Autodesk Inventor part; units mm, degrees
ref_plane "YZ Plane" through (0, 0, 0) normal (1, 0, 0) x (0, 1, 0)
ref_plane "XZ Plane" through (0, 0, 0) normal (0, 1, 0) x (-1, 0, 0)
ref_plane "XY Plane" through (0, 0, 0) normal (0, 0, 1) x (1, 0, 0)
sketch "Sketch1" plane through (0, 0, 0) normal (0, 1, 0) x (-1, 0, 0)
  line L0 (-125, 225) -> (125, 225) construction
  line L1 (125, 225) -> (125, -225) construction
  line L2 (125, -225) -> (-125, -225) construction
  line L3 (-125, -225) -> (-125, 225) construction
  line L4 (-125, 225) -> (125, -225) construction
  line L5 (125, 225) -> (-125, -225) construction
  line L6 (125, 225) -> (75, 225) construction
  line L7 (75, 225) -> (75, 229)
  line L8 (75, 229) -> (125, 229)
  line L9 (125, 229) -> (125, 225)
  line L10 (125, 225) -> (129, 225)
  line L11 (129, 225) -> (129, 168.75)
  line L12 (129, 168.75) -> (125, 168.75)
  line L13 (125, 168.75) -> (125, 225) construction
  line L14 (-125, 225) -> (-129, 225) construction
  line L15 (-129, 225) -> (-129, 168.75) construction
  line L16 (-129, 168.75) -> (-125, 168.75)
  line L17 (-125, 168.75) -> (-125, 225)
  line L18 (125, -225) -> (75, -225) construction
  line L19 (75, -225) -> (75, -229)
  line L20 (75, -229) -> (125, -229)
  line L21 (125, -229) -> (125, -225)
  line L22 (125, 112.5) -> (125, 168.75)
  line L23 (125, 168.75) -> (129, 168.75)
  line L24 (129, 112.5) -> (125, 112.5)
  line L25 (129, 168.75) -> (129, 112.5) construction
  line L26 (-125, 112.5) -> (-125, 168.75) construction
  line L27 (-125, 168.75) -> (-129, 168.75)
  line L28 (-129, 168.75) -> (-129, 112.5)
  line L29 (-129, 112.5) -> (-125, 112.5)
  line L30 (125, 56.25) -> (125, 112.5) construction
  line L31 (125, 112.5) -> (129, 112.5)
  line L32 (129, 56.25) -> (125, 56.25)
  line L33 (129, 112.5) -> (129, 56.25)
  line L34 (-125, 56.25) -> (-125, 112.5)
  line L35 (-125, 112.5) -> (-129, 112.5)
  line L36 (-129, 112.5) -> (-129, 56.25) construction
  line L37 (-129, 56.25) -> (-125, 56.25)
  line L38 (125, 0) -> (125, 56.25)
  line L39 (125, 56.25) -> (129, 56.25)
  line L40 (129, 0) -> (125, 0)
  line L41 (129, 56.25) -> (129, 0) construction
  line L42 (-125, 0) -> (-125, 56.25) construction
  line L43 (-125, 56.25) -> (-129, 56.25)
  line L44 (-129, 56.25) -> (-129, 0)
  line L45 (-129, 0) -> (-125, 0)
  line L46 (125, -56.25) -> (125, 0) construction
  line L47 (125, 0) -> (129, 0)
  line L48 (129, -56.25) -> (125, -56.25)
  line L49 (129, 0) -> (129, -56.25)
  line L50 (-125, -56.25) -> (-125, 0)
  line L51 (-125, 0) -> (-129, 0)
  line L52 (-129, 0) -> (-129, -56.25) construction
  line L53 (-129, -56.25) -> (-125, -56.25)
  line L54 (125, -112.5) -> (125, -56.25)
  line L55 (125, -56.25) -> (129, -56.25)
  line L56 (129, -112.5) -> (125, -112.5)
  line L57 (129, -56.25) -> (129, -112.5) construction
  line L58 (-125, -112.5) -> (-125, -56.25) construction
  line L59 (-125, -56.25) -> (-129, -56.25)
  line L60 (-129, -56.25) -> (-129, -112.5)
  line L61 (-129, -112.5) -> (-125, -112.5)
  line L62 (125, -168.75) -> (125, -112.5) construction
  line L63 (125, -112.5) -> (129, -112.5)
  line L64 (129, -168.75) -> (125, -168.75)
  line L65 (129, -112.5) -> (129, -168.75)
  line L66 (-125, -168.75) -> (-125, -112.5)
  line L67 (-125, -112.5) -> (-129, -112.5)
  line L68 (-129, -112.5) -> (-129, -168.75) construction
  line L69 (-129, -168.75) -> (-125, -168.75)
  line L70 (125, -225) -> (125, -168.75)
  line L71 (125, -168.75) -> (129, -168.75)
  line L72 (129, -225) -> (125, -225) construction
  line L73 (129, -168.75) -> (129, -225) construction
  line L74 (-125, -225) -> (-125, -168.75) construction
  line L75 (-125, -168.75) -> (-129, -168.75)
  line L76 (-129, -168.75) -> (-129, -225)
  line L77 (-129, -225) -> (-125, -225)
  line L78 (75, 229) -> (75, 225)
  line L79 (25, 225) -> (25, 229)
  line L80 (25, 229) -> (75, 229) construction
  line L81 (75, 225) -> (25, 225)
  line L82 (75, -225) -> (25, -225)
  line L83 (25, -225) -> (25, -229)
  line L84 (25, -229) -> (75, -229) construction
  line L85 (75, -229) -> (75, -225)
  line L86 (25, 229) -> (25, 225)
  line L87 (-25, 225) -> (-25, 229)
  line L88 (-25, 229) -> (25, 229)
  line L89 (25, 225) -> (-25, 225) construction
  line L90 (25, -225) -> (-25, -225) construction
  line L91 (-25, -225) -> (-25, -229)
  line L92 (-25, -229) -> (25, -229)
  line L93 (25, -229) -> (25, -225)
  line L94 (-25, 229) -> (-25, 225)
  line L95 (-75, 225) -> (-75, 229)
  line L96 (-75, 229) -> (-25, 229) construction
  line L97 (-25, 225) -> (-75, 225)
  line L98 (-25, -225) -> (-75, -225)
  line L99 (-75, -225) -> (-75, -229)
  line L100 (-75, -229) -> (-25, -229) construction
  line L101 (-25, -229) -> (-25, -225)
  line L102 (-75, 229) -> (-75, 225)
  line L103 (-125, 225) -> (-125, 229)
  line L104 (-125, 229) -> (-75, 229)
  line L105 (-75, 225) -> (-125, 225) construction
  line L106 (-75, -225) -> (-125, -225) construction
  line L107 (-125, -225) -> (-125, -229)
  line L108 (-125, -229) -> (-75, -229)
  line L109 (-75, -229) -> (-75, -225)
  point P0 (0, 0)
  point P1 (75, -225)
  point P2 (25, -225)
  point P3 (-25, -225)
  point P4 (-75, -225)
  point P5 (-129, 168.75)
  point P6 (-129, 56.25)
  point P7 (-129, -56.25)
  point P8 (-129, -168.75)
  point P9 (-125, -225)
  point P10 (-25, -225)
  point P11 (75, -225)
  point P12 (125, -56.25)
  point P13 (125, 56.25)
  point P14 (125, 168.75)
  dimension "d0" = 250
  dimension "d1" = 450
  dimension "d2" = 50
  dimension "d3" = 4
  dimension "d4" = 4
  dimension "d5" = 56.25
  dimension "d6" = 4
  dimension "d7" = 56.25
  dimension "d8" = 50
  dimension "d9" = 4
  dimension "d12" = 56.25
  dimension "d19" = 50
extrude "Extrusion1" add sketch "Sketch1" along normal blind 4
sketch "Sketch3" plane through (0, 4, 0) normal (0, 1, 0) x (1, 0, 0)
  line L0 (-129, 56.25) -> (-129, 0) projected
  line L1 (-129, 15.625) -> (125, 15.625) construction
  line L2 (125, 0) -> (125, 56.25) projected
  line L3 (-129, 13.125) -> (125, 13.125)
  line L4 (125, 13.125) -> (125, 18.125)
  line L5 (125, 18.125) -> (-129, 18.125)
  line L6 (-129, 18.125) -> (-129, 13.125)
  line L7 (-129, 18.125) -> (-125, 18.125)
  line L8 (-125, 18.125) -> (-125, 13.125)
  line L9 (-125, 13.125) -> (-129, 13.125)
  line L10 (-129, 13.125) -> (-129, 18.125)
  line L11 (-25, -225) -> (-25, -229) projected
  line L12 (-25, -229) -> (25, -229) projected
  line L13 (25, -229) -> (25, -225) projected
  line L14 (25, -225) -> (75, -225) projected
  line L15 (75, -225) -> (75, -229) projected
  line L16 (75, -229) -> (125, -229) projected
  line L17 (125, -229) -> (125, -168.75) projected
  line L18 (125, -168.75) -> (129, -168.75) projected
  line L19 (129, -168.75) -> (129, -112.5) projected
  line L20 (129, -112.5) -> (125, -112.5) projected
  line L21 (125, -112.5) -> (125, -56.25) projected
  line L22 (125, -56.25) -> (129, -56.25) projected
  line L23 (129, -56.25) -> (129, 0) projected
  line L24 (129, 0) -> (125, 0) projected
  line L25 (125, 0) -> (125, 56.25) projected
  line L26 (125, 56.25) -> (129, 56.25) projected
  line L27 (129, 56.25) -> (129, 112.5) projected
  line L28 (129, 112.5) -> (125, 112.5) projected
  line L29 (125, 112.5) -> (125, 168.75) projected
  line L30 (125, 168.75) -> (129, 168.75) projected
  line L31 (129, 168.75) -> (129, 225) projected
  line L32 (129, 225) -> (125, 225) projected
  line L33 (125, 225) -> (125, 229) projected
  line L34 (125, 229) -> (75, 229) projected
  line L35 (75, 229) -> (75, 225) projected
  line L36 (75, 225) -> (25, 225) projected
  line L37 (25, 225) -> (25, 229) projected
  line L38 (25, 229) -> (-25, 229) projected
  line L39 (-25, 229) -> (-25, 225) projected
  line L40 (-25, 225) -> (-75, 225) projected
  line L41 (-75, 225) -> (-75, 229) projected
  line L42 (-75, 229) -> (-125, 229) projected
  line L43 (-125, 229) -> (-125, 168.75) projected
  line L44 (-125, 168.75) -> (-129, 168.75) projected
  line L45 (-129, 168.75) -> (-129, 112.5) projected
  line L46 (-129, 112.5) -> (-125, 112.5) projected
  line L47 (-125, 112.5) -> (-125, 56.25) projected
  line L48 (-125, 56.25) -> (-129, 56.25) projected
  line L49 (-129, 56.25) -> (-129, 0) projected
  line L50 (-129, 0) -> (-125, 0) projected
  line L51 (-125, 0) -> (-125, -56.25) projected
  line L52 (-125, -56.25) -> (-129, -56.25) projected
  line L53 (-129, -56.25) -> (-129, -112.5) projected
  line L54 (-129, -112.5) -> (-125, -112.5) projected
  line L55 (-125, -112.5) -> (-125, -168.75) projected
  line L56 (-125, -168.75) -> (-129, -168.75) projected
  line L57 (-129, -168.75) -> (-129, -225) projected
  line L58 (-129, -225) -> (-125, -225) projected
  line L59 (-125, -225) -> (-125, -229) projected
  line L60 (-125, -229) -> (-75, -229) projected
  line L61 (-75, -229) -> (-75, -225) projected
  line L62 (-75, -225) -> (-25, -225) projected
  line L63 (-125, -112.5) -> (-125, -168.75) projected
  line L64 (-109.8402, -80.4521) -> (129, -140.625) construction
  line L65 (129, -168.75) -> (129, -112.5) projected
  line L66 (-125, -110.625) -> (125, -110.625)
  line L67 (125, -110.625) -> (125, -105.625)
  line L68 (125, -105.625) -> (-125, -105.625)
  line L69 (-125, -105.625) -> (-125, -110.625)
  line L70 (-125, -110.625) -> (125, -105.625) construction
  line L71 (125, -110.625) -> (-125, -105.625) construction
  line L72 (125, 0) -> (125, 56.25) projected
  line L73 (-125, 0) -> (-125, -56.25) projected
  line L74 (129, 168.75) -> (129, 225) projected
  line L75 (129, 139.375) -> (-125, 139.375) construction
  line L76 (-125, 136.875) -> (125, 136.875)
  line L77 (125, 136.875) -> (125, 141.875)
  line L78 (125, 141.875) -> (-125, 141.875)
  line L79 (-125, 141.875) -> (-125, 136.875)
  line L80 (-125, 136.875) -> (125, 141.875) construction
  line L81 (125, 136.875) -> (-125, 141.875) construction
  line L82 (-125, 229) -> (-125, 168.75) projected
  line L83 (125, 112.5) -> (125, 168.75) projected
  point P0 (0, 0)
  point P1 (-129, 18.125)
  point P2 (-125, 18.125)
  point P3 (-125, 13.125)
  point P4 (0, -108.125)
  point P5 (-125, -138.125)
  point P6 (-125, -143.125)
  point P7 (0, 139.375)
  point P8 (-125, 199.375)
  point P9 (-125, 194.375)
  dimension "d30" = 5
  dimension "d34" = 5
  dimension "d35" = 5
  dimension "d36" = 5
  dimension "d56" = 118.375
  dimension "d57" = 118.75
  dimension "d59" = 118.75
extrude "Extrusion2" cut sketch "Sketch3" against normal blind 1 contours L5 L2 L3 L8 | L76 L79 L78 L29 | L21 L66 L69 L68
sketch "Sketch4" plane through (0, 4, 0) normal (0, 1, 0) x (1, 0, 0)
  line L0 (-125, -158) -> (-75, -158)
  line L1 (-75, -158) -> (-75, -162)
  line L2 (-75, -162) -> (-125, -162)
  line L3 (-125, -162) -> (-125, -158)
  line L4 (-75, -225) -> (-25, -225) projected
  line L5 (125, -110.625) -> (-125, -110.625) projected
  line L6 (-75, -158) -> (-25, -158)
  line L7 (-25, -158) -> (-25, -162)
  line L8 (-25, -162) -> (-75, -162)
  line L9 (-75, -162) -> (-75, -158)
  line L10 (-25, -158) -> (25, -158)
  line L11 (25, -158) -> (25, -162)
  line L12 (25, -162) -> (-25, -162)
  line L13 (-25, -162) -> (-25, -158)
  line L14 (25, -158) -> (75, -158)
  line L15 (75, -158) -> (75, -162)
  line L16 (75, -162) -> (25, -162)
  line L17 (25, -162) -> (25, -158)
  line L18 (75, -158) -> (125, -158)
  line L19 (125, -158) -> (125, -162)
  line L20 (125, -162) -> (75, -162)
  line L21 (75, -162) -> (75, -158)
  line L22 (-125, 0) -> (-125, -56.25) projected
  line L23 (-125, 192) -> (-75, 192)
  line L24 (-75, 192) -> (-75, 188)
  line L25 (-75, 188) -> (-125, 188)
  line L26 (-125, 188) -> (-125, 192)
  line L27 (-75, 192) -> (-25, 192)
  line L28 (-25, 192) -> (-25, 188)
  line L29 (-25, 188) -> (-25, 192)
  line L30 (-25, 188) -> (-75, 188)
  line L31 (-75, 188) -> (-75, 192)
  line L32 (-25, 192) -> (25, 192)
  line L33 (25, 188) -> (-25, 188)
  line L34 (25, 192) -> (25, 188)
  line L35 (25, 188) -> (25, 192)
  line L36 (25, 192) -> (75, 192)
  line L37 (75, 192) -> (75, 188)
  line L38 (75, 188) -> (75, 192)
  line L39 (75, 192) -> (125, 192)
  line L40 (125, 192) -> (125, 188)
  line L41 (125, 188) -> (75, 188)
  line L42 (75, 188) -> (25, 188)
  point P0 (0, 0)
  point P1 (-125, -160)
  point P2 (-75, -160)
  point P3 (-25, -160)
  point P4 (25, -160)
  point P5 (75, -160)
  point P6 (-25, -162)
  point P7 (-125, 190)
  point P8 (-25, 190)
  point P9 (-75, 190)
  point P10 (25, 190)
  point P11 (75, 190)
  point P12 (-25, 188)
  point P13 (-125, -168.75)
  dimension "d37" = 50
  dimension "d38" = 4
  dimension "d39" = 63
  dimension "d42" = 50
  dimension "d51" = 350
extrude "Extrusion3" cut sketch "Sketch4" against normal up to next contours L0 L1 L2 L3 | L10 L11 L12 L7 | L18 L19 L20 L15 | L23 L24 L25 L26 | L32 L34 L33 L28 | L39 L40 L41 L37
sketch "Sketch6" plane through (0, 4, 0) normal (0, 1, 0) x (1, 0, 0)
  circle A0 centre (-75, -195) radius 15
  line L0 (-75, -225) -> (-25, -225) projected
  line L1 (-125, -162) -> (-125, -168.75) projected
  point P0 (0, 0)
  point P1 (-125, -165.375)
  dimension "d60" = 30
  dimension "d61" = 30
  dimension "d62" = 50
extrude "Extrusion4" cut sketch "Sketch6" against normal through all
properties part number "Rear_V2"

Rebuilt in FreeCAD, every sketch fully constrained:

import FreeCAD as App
import Part
import Sketcher

V = App.Vector


def add_polygon(sketch, points):
    """Adds a closed chain of lines whose ends are joined by coincident constraints."""
    first, n = sketch.GeometryCount, len(points)
    for a, b in zip(points, points[1:] + points[:1]):
        sketch.addGeometry(Part.LineSegment(App.Vector(*a, 0), App.Vector(*b, 0)), False)
    for i in range(n):
        sketch.addConstraint(Sketcher.Constraint("Coincident", first + i, 2, first + (i + 1) % n, 1))

doc = App.newDocument("Part")
params = doc.addObject("Spreadsheet::Sheet", "Params")
for row, (alias, value) in enumerate([
    ("sketch1_width", "50 mm"),
    ("sketch1_width2", "4 mm"),
    ("sketch1_height", "56.25 mm"),
    ("pad1_length", "4 mm"),
    ("sketch2_height", "5 mm"),
    ("sketch2_width", "250 mm"),
    ("pocket1_length", "1 mm"),
    ("sketch3_width", "50 mm"),
    ("sketch3_height", "4 mm"),
    ("pocket2_length", "4 mm"),
    ("sketch4_diameter", "30 mm"),
], start=1):
    params.set(f"A{row}", alias)
    params.set(f"B{row}", "=" + value)
    params.setAlias(f"B{row}", alias)

body = doc.addObject("PartDesign::Body", "Body")

sketch1 = body.newObject("Sketcher::SketchObject", "Sketch")
sketch1.AttachmentSupport = (doc.getObject("XZ_Plane"), [""])
sketch1.MapMode = "FlatFace"
add_polygon(sketch1, [(-75, 229), (-75, 225), (-25, 225), (-25, 229), (25, 229), (25, 225), (75, 225), (75, 229), (125, 229), (125, 168.75), (129, 168.75), (129, 112.5), (125, 112.5), (125, 56.25), (129, 56.25), (129, 0), (125, 0), (125, -56.25), (129, -56.25), (129, -112.5), (125, -112.5), (125, -168.75), (129, -168.75), (129, -225), (125, -225), (125, -229), (75, -229), (75, -225), (25, -225), (25, -229), (-25, -229), (-25, -225), (-75, -225), (-75, -229), (-125, -229), (-125, -168.75), (-129, -168.75), (-129, -112.5), (-125, -112.5), (-125, -56.25), (-129, -56.25), (-129, 0), (-125, 0), (-125, 56.25), (-129, 56.25), (-129, 112.5), (-125, 112.5), (-125, 168.75), (-129, 168.75), (-129, 225), (-125, 225), (-125, 229)])
sketch1.addConstraint(Sketcher.Constraint("Vertical", 0))
sketch1.addConstraint(Sketcher.Constraint("Horizontal", 1))
sketch1.addConstraint(Sketcher.Constraint("Vertical", 2))
sketch1.addConstraint(Sketcher.Constraint("Horizontal", 3))
sketch1.addConstraint(Sketcher.Constraint("Vertical", 4))
sketch1.addConstraint(Sketcher.Constraint("Horizontal", 5))
sketch1.addConstraint(Sketcher.Constraint("Vertical", 6))
sketch1.addConstraint(Sketcher.Constraint("Horizontal", 7))
sketch1.addConstraint(Sketcher.Constraint("Vertical", 8))
sketch1.addConstraint(Sketcher.Constraint("Horizontal", 9))
sketch1.addConstraint(Sketcher.Constraint("Vertical", 10))
sketch1.addConstraint(Sketcher.Constraint("Horizontal", 11))
sketch1.addConstraint(Sketcher.Constraint("Vertical", 12))
sketch1.addConstraint(Sketcher.Constraint("Horizontal", 13))
sketch1.addConstraint(Sketcher.Constraint("Vertical", 14))
sketch1.addConstraint(Sketcher.Constraint("Horizontal", 15))
sketch1.addConstraint(Sketcher.Constraint("Vertical", 16))
sketch1.addConstraint(Sketcher.Constraint("Horizontal", 17))
sketch1.addConstraint(Sketcher.Constraint("Vertical", 18))
sketch1.addConstraint(Sketcher.Constraint("Horizontal", 19))
sketch1.addConstraint(Sketcher.Constraint("Vertical", 20))
sketch1.addConstraint(Sketcher.Constraint("Horizontal", 21))
sketch1.addConstraint(Sketcher.Constraint("Vertical", 22))
sketch1.addConstraint(Sketcher.Constraint("Horizontal", 23))
sketch1.addConstraint(Sketcher.Constraint("Vertical", 24))
sketch1.addConstraint(Sketcher.Constraint("Horizontal", 25))
sketch1.addConstraint(Sketcher.Constraint("Vertical", 26))
sketch1.addConstraint(Sketcher.Constraint("Horizontal", 27))
sketch1.addConstraint(Sketcher.Constraint("Vertical", 28))
sketch1.addConstraint(Sketcher.Constraint("Horizontal", 29))
sketch1.addConstraint(Sketcher.Constraint("Vertical", 30))
sketch1.addConstraint(Sketcher.Constraint("Horizontal", 31))
sketch1.addConstraint(Sketcher.Constraint("Vertical", 32))
sketch1.addConstraint(Sketcher.Constraint("Horizontal", 33))
sketch1.addConstraint(Sketcher.Constraint("Vertical", 34))
sketch1.addConstraint(Sketcher.Constraint("Horizontal", 35))
sketch1.addConstraint(Sketcher.Constraint("Vertical", 36))
sketch1.addConstraint(Sketcher.Constraint("Horizontal", 37))
sketch1.addConstraint(Sketcher.Constraint("Vertical", 38))
sketch1.addConstraint(Sketcher.Constraint("Horizontal", 39))
sketch1.addConstraint(Sketcher.Constraint("Vertical", 40))
sketch1.addConstraint(Sketcher.Constraint("Horizontal", 41))
sketch1.addConstraint(Sketcher.Constraint("Vertical", 42))
sketch1.addConstraint(Sketcher.Constraint("Horizontal", 43))
sketch1.addConstraint(Sketcher.Constraint("Vertical", 44))
sketch1.addConstraint(Sketcher.Constraint("Horizontal", 45))
sketch1.addConstraint(Sketcher.Constraint("Vertical", 46))
sketch1.addConstraint(Sketcher.Constraint("Horizontal", 47))
sketch1.addConstraint(Sketcher.Constraint("Vertical", 48))
sketch1.addConstraint(Sketcher.Constraint("Horizontal", 49))
sketch1.addConstraint(Sketcher.Constraint("Vertical", 50))
sketch1.addConstraint(Sketcher.Constraint("Horizontal", 51))
sketch1.addConstraint(Sketcher.Constraint("Symmetric", 0, 2, 26, 2, -1, 1))
sketch1.addConstraint(Sketcher.Constraint("Symmetric", 2, 2, 28, 2, -1, 1))
sketch1.addConstraint(Sketcher.Constraint("Symmetric", 4, 2, 30, 2, -1, 1))
sketch1.addConstraint(Sketcher.Constraint("Symmetric", 6, 2, 32, 2, -1, 1))
sketch1.addConstraint(Sketcher.Constraint("Symmetric", 8, 2, 34, 2, -1, 1))
sketch1.addConstraint(Sketcher.Constraint("Symmetric", 10, 2, 36, 2, -1, 1))
sketch1.addConstraint(Sketcher.Constraint("Symmetric", 12, 2, 38, 2, -1, 1))
sketch1.addConstraint(Sketcher.Constraint("Symmetric", 14, 2, 40, 2, -1, 1))
sketch1.addConstraint(Sketcher.Constraint("Symmetric", 16, 2, 42, 2, -1, 1))
sketch1.addConstraint(Sketcher.Constraint("Symmetric", 18, 2, 44, 2, -1, 1))
sketch1.addConstraint(Sketcher.Constraint("Symmetric", 20, 2, 46, 2, -1, 1))
sketch1.addConstraint(Sketcher.Constraint("Symmetric", 22, 2, 48, 2, -1, 1))
sketch1.addConstraint(Sketcher.Constraint("Symmetric", 24, 2, 50, 2, -1, 1))
sketch1.addConstraint(Sketcher.Constraint("Symmetric", 1, 2, 4, 2, -2))
sketch1.addConstraint(Sketcher.Constraint("Symmetric", 25, 2, 32, 2, -2))
sketch1.addConstraint(Sketcher.Constraint("Symmetric", 20, 2, 34, 2, -2))
sketch1.addConstraint(Sketcher.Constraint("Symmetric", 18, 2, 36, 2, -2))
sketch1.addConstraint(Sketcher.Constraint("Symmetric", 16, 2, 38, 2, -2))
sketch1.addConstraint(Sketcher.Constraint("PointOnObject", 14, 2, -1))
sketch1.addConstraint(Sketcher.Constraint("Horizontal", 3, 2, 6, 2))
sketch1.addConstraint(Sketcher.Constraint("Horizontal", 23, 2, 26, 2))
sketch1.addConstraint(Sketcher.Constraint("Vertical", 8, 2, 11, 2))
sketch1.addConstraint(Sketcher.Constraint("Vertical", 10, 2, 13, 2))
sketch1.addConstraint(Sketcher.Constraint("Vertical", 18, 2, 21, 2))
sketch1.addConstraint(Sketcher.Constraint("Vertical", 20, 2, 23, 2))
sketch1.addConstraint(Sketcher.Constraint("Equal", 1, 3))
sketch1.addConstraint(Sketcher.Constraint("Equal", 5, 7))
sketch1.addConstraint(Sketcher.Constraint("Equal", 49, 0))
sketch1.addConstraint(Sketcher.Constraint("Equal", 10, 12))
sketch1.addConstraint(Sketcher.Constraint("Equal", 12, 14))
sketch1.addConstraint(Sketcher.Constraint("Equal", 20, 22))
sketch1.addConstraint(Sketcher.Constraint("DistanceX", 1, 1, 1, 2, 50.0))
sketch1.addConstraint(Sketcher.Constraint("DistanceX", 9, 1, 9, 2, 4.0))
sketch1.addConstraint(Sketcher.Constraint("DistanceY", 10, 2, 10, 1, 56.25))
sketch1.setExpression("Constraints[135]", "Params.sketch1_width")
sketch1.setExpression("Constraints[136]", "Params.sketch1_width2")
sketch1.setExpression("Constraints[137]", "Params.sketch1_height")
pad1 = body.newObject("PartDesign::Pad", "Pad")
pad1.Profile = sketch1
pad1.setExpression("Length", "Params.pad1_length")
pad1.Reversed = True

sketch2 = body.newObject("Sketcher::SketchObject", "Sketch001")
sketch2.AttachmentSupport = (doc.getObject("XZ_Plane"), [""])
sketch2.MapMode = "FlatFace"
sketch2.AttachmentOffset = App.Placement(V(0, 0, -4), App.Rotation())
add_polygon(sketch2, [(125, -18.125), (-125, -18.125), (-125, -13.125), (125, -13.125)])
add_polygon(sketch2, [(-125, -136.875), (125, -136.875), (125, -141.875), (-125, -141.875)])
add_polygon(sketch2, [(125, 110.625), (125, 105.625), (-125, 105.625), (-125, 110.625)])
sketch2.addConstraint(Sketcher.Constraint("Horizontal", 0))
sketch2.addConstraint(Sketcher.Constraint("Vertical", 1))
sketch2.addConstraint(Sketcher.Constraint("Horizontal", 2))
sketch2.addConstraint(Sketcher.Constraint("Vertical", 3))
sketch2.addConstraint(Sketcher.Constraint("Horizontal", 4))
sketch2.addConstraint(Sketcher.Constraint("Vertical", 5))
sketch2.addConstraint(Sketcher.Constraint("Horizontal", 6))
sketch2.addConstraint(Sketcher.Constraint("Vertical", 7))
sketch2.addConstraint(Sketcher.Constraint("Vertical", 8))
sketch2.addConstraint(Sketcher.Constraint("Horizontal", 9))
sketch2.addConstraint(Sketcher.Constraint("Vertical", 10))
sketch2.addConstraint(Sketcher.Constraint("Horizontal", 11))
sketch2.addConstraint(Sketcher.Constraint("Vertical", 3, 2, 4, 2))
sketch2.addConstraint(Sketcher.Constraint("Vertical", 1, 2, 6, 2))
sketch2.addConstraint(Sketcher.Constraint("Vertical", 5, 2, 8, 2))
sketch2.addConstraint(Sketcher.Constraint("Vertical", 7, 2, 9, 2))
sketch2.addConstraint(Sketcher.Constraint("Equal", 3, 5))
sketch2.addConstraint(Sketcher.Constraint("Equal", 7, 8))
sketch2.addConstraint(Sketcher.Constraint("DistanceY", 1, 1, 1, 2, 5.0))
sketch2.addConstraint(Sketcher.Constraint("DistanceX", 0, 2, 0, 1, 250.0))
sketch2.addConstraint(Sketcher.Constraint("DistanceY", 4, 2, 3, 2, 118.75))
sketch2.addConstraint(Sketcher.Constraint("DistanceY", 2, 2, 8, 2, 118.75))
sketch2.addConstraint(Sketcher.Constraint("DistanceX", 0, 2, -1, 1, 125.0))
sketch2.addConstraint(Sketcher.Constraint("DistanceY", 0, 2, -1, 1, 18.125))
sketch2.setExpression("Constraints[30]", "Params.sketch2_height")
sketch2.setExpression("Constraints[31]", "Params.sketch2_width")
pocket1 = body.newObject("PartDesign::Pocket", "Pocket")
pocket1.Profile = sketch2
pocket1.setExpression("Length", "Params.pocket1_length")
pocket1.Reversed = True

sketch3 = body.newObject("Sketcher::SketchObject", "Sketch002")
sketch3.AttachmentSupport = (doc.getObject("XZ_Plane"), [""])
sketch3.MapMode = "FlatFace"
sketch3.AttachmentOffset = App.Placement(V(0, 0, -4), App.Rotation())
add_polygon(sketch3, [(-75, 158), (-125, 158), (-125, 162), (-75, 162)])
add_polygon(sketch3, [(25, 158), (-25, 158), (-25, 162), (25, 162)])
add_polygon(sketch3, [(125, 158), (75, 158), (75, 162), (125, 162)])
add_polygon(sketch3, [(-75, -192), (-125, -192), (-125, -188), (-75, -188)])
add_polygon(sketch3, [(25, -192), (-25, -192), (-25, -188), (25, -188)])
add_polygon(sketch3, [(125, -192), (75, -192), (75, -188), (125, -188)])
sketch3.addConstraint(Sketcher.Constraint("Horizontal", 0))
sketch3.addConstraint(Sketcher.Constraint("Vertical", 1))
sketch3.addConstraint(Sketcher.Constraint("Horizontal", 2))
sketch3.addConstraint(Sketcher.Constraint("Vertical", 3))
sketch3.addConstraint(Sketcher.Constraint("Horizontal", 4))
sketch3.addConstraint(Sketcher.Constraint("Vertical", 5))
sketch3.addConstraint(Sketcher.Constraint("Horizontal", 6))
sketch3.addConstraint(Sketcher.Constraint("Vertical", 7))
sketch3.addConstraint(Sketcher.Constraint("Horizontal", 8))
sketch3.addConstraint(Sketcher.Constraint("Vertical", 9))
sketch3.addConstraint(Sketcher.Constraint("Horizontal", 10))
sketch3.addConstraint(Sketcher.Constraint("Vertical", 11))
sketch3.addConstraint(Sketcher.Constraint("Horizontal", 12))
sketch3.addConstraint(Sketcher.Constraint("Vertical", 13))
sketch3.addConstraint(Sketcher.Constraint("Horizontal", 14))
sketch3.addConstraint(Sketcher.Constraint("Vertical", 15))
sketch3.addConstraint(Sketcher.Constraint("Horizontal", 16))
sketch3.addConstraint(Sketcher.Constraint("Vertical", 17))
sketch3.addConstraint(Sketcher.Constraint("Horizontal", 18))
sketch3.addConstraint(Sketcher.Constraint("Vertical", 19))
sketch3.addConstraint(Sketcher.Constraint("Horizontal", 20))
sketch3.addConstraint(Sketcher.Constraint("Vertical", 21))
sketch3.addConstraint(Sketcher.Constraint("Horizontal", 22))
sketch3.addConstraint(Sketcher.Constraint("Vertical", 23))
sketch3.addConstraint(Sketcher.Constraint("Symmetric", 3, 2, 8, 2, -2))
sketch3.addConstraint(Sketcher.Constraint("Symmetric", 1, 2, 10, 2, -2))
sketch3.addConstraint(Sketcher.Constraint("Symmetric", 15, 2, 20, 2, -2))
sketch3.addConstraint(Sketcher.Constraint("Symmetric", 13, 2, 22, 2, -2))
sketch3.addConstraint(Sketcher.Constraint("Horizontal", 3, 2, 4, 2))
sketch3.addConstraint(Sketcher.Constraint("Horizontal", 2, 2, 5, 2))
sketch3.addConstraint(Sketcher.Constraint("Horizontal", 15, 2, 16, 2))
sketch3.addConstraint(Sketcher.Constraint("Horizontal", 14, 2, 17, 2))
sketch3.addConstraint(Sketcher.Constraint("Vertical", 1, 2, 12, 2))
sketch3.addConstraint(Sketcher.Constraint("Vertical", 3, 2, 14, 2))
sketch3.addConstraint(Sketcher.Constraint("Vertical", 5, 2, 16, 2))
sketch3.addConstraint(Sketcher.Constraint("Vertical", 7, 2, 18, 2))
sketch3.addConstraint(Sketcher.Constraint("Equal", 2, 4))
sketch3.addConstraint(Sketcher.Constraint("Equal", 11, 13))
sketch3.addConstraint(Sketcher.Constraint("DistanceX", 0, 2, 0, 1, 50.0))
sketch3.addConstraint(Sketcher.Constraint("DistanceY", 1, 1, 1, 2, 4.0))
sketch3.addConstraint(Sketcher.Constraint("DistanceX", 3, 2, 4, 2, 50.0))
sketch3.addConstraint(Sketcher.Constraint("DistanceX", 7, 2, 8, 2, 50.0))
sketch3.addConstraint(Sketcher.Constraint("DistanceY", 12, 2, 0, 2, 350.0))
sketch3.addConstraint(Sketcher.Constraint("DistanceY", -1, 1, 0, 2, 158.0))
sketch3.setExpression("Constraints[62]", "Params.sketch3_width")
sketch3.setExpression("Constraints[63]", "Params.sketch3_height")
pocket2 = body.newObject("PartDesign::Pocket", "Pocket001")
pocket2.Profile = sketch3
pocket2.setExpression("Length", "Params.pocket2_length")
pocket2.Reversed = True

sketch4 = body.newObject("Sketcher::SketchObject", "Sketch003")
sketch4.AttachmentSupport = (doc.getObject("XZ_Plane"), [""])
sketch4.MapMode = "FlatFace"
sketch4.AttachmentOffset = App.Placement(V(0, 0, -4), App.Rotation())
sketch4.addGeometry(Part.Circle(V(-75, 195, 0), V(0, 0, 1), 15), False)
sketch4.addConstraint(Sketcher.Constraint("Diameter", 0, 30.0))
sketch4.addConstraint(Sketcher.Constraint("DistanceX", 0, 3, -1, 1, 75.0))
sketch4.addConstraint(Sketcher.Constraint("DistanceY", -1, 1, 0, 3, 195.0))
sketch4.setExpression("Constraints[0]", "Params.sketch4_diameter")
pocket3 = body.newObject("PartDesign::Pocket", "Pocket002")
pocket3.Profile = sketch4
pocket3.Type = "ThroughAll"
pocket3.Reversed = True

doc.recompute()
